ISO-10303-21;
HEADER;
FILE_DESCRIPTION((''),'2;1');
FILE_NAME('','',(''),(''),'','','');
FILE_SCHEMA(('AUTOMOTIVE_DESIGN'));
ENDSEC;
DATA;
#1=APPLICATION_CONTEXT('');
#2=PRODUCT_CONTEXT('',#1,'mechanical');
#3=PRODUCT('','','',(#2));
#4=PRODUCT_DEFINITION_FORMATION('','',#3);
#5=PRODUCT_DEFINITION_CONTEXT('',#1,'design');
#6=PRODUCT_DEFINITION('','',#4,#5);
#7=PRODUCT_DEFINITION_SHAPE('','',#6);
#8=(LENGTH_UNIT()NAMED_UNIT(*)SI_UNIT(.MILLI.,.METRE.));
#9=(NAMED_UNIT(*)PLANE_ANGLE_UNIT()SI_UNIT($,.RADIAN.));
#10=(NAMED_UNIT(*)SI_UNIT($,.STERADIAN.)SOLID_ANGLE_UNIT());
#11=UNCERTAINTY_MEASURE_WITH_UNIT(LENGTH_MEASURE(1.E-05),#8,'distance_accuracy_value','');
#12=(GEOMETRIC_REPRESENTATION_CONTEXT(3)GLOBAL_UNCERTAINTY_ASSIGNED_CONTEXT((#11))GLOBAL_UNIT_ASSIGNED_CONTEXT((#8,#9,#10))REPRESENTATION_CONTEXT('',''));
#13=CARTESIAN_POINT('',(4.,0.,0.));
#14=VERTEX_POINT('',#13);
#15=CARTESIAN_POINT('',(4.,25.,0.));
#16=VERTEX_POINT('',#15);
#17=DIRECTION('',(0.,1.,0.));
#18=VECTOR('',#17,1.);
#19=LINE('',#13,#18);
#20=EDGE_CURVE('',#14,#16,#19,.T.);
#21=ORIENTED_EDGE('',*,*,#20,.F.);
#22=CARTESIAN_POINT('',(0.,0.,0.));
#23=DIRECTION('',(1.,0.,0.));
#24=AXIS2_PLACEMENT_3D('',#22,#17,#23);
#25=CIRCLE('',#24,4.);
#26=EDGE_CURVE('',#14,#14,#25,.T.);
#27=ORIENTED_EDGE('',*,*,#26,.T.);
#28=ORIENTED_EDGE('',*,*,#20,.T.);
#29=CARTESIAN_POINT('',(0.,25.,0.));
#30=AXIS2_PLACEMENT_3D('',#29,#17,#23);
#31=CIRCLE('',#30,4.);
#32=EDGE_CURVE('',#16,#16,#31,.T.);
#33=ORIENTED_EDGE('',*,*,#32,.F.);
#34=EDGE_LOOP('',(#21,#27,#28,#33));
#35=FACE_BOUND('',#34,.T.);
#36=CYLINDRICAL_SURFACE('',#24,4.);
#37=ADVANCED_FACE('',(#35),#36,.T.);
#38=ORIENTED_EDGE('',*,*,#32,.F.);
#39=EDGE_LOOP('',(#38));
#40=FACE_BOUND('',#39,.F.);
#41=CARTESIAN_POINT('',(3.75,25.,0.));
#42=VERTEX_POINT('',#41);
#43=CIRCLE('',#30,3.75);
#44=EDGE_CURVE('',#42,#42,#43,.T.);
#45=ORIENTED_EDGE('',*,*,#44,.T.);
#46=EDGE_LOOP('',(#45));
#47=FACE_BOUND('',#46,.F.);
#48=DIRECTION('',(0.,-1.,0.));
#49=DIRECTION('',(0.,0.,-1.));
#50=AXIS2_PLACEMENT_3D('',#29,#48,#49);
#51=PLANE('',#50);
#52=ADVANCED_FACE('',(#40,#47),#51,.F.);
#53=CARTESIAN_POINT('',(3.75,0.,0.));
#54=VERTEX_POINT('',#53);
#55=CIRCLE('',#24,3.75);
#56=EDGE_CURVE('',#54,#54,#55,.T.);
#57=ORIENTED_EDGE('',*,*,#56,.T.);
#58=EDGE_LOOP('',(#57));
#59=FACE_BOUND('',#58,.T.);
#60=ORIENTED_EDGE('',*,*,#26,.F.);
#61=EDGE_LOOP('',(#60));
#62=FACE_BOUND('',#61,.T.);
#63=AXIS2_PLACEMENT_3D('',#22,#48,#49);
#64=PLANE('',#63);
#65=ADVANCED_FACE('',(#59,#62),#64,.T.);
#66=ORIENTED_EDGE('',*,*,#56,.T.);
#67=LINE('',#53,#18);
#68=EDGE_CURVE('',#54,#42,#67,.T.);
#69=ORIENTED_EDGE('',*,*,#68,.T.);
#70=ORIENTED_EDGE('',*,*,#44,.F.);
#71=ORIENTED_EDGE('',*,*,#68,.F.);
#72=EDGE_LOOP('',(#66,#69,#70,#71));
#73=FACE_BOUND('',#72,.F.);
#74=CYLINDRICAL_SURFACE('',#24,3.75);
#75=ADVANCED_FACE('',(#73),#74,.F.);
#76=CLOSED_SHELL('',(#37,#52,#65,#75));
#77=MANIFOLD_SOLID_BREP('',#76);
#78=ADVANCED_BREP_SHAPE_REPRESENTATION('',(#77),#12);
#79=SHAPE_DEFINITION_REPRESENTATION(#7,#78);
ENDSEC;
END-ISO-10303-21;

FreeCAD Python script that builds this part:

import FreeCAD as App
import Part
import Sketcher

doc = App.newDocument("Part")
body = doc.addObject("PartDesign::Body", "Body")

# Sketch on XZ plane
sketch1 = body.newObject("Sketcher::SketchObject", "Sketch")
sketch1.AttachmentSupport = (doc.getObject("XZ_Plane"), [""])
sketch1.MapMode = "FlatFace"
sketch1.addGeometry([
    Part.Circle(App.Vector(0, 0, 0), App.Vector(0, 0, 1), 4),
    Part.Circle(App.Vector(0, 0, 0), App.Vector(0, 0, 1), 3.75),
], False)
sketch1.addConstraint([
    Sketcher.Constraint("Coincident", 0, 3, -1, 1),
    Sketcher.Constraint("Coincident", 1, 3, -1, 1),
    Sketcher.Constraint("Diameter", 0, 8.0),
    Sketcher.Constraint("Diameter", 1, 7.5),
])

# Sketch on XY plane
sketch2 = body.newObject("Sketcher::SketchObject", "Sketch001")
sketch2.AttachmentSupport = (doc.getObject("XY_Plane"), [""])
sketch2.MapMode = "FlatFace"
sketch2.addGeometry(Part.LineSegment(App.Vector(0, 0, 0), App.Vector(0, 25, 0)), False)
sketch2.addConstraint([
    Sketcher.Constraint("Vertical", 0),
    Sketcher.Constraint("Coincident", 0, 1, -1, 1),
    Sketcher.Constraint("DistanceY", 0, 1, 0, 2, 25.0),
])
doc.recompute()

additivepipe = body.newObject("PartDesign::AdditivePipe", "AdditivePipe")
additivepipe.Profile = sketch1
additivepipe.Spine = (sketch2, ["Edge1"])

doc.recompute()
